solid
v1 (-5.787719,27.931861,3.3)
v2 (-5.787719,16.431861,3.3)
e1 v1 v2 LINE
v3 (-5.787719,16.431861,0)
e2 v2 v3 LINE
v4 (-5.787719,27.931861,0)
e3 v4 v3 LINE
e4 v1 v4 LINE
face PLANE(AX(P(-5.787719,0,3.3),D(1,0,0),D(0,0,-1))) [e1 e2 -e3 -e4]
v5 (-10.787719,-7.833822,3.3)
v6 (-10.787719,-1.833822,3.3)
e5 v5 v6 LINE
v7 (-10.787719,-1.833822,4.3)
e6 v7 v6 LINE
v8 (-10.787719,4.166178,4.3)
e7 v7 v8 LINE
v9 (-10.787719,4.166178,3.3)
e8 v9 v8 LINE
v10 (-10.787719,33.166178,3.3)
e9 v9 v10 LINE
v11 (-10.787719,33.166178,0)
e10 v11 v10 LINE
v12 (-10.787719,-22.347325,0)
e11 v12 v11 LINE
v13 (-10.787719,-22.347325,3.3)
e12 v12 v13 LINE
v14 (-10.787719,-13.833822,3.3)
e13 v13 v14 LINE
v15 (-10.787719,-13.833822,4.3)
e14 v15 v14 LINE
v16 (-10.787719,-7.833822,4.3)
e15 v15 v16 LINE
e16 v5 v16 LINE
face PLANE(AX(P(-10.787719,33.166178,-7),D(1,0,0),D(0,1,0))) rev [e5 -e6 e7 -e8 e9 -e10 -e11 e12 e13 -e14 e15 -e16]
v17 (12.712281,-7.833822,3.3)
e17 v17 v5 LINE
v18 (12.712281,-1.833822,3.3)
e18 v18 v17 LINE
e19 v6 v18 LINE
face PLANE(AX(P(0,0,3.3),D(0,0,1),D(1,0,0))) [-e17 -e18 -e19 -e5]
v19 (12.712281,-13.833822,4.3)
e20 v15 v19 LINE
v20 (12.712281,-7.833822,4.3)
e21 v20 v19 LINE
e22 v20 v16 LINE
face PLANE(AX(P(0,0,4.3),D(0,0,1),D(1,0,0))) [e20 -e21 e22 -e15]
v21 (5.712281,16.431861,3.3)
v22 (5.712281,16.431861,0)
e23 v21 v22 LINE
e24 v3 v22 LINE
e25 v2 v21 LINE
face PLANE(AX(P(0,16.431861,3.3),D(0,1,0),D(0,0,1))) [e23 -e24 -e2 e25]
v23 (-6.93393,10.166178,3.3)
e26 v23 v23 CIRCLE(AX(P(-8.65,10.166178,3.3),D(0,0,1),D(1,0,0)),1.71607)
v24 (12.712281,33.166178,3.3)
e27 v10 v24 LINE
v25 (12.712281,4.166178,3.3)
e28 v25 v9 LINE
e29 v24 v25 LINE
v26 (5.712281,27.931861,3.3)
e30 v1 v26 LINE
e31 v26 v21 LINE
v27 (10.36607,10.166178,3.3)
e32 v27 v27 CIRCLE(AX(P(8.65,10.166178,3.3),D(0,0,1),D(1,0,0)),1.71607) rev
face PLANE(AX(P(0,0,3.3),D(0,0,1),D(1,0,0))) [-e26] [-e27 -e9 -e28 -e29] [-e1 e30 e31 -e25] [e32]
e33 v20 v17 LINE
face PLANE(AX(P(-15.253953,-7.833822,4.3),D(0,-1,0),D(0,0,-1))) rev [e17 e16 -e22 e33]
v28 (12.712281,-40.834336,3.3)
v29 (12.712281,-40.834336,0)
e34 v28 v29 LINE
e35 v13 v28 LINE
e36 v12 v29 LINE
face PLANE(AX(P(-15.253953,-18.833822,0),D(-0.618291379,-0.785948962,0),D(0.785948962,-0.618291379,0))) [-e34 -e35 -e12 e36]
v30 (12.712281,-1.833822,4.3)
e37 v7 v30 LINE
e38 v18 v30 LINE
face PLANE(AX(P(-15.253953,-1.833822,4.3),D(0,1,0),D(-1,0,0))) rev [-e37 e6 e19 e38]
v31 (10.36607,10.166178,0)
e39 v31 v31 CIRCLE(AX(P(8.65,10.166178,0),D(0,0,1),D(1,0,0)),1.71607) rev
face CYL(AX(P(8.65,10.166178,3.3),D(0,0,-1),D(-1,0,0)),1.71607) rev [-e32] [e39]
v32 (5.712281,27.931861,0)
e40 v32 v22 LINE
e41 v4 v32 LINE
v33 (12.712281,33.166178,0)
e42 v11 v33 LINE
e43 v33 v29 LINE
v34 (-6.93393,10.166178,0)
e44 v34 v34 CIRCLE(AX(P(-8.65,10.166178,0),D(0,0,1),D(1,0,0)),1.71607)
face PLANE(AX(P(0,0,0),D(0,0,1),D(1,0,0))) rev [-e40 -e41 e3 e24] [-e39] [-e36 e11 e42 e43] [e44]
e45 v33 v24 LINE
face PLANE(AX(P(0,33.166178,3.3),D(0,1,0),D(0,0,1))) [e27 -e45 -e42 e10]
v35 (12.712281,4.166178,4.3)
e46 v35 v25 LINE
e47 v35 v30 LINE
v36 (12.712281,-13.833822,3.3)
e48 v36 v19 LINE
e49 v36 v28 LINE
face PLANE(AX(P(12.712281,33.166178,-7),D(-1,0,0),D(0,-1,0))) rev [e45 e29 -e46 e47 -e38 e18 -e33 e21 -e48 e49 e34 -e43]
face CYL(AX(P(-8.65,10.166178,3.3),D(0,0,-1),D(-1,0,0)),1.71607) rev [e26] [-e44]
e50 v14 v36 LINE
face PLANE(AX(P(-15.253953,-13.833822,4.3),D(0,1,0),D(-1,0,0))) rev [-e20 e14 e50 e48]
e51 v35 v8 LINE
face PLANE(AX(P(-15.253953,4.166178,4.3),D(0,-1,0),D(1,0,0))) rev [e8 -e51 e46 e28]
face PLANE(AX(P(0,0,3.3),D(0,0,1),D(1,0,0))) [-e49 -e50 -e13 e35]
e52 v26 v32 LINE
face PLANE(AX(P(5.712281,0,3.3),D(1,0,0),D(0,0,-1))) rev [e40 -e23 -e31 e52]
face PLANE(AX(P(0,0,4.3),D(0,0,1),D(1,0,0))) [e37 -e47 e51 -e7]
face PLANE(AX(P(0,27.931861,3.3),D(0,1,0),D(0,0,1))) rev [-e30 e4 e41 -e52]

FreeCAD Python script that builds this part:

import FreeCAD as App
import Part
import Sketcher

doc = App.newDocument("Part")
body = doc.addObject("PartDesign::Body", "Body")

sketch1 = body.newObject("Sketcher::SketchObject", "Sketch")
sketch1.AttachmentSupport = (doc.getObject("XY_Plane"), [""])
sketch1.MapMode = "FlatFace"
sketch1.addGeometry([
    Part.LineSegment(App.Vector(-15.3, 33.2, 0), App.Vector(-15.3, -42.8, 0)),
    Part.LineSegment(App.Vector(-15.3, -42.8, 0), App.Vector(15.3, -42.8, 0)),
    Part.LineSegment(App.Vector(15.3, -42.8, 0), App.Vector(15.3, 33.2, 0)),
    Part.LineSegment(App.Vector(15.3, 33.2, 0), App.Vector(-15.3, 33.2, 0)),
    Part.LineSegment(App.Vector(12.3, -39.8, 0), App.Vector(-12.3, -39.8, 0)),
    Part.LineSegment(App.Vector(-12.3, -39.8, 0), App.Vector(-12.3, -20.8, 0)),
    Part.LineSegment(App.Vector(-12.3, -20.8, 0), App.Vector(12.3, -20.8, 0)),
    Part.LineSegment(App.Vector(12.3, -20.8, 0), App.Vector(12.3, -39.8, 0)),
    Part.Circle(App.Vector(-8.7, 10.2, 0), App.Vector(0, 0, 1), 1.7),
    Part.LineSegment(App.Vector(5.7, 16.4, 0), App.Vector(-5.8, 16.4, 0)),
    Part.LineSegment(App.Vector(-5.8, 16.4, 0), App.Vector(-5.8, 27.9, 0)),
    Part.LineSegment(App.Vector(-5.8, 27.9, 0), App.Vector(5.7, 27.9, 0)),
    Part.LineSegment(App.Vector(5.7, 27.9, 0), App.Vector(5.7, 16.4, 0)),
    Part.Circle(App.Vector(8.7, 10.2, 0), App.Vector(0, 0, 1), 1.7),
], False)
sketch1.addConstraint([
    Sketcher.Constraint("Coincident", 0, 2, 1, 1),
    Sketcher.Constraint("Coincident", 1, 2, 2, 1),
    Sketcher.Constraint("Coincident", 2, 2, 3, 1),
    Sketcher.Constraint("Coincident", 3, 2, 0, 1),
    Sketcher.Constraint("Coincident", 4, 2, 5, 1),
    Sketcher.Constraint("Coincident", 5, 2, 6, 1),
    Sketcher.Constraint("Coincident", 6, 2, 7, 1),
    Sketcher.Constraint("Coincident", 7, 2, 4, 1),
    Sketcher.Constraint("Coincident", 9, 2, 10, 1),
    Sketcher.Constraint("Coincident", 10, 2, 11, 1),
    Sketcher.Constraint("Coincident", 11, 2, 12, 1),
    Sketcher.Constraint("Coincident", 12, 2, 9, 1),
    Sketcher.Constraint("Vertical", 0),
    Sketcher.Constraint("Horizontal", 1),
    Sketcher.Constraint("Vertical", 2),
    Sketcher.Constraint("Horizontal", 3),
    Sketcher.Constraint("Horizontal", 4),
    Sketcher.Constraint("Vertical", 5),
    Sketcher.Constraint("Horizontal", 6),
    Sketcher.Constraint("Vertical", 7),
    Sketcher.Constraint("Horizontal", 9),
    Sketcher.Constraint("Vertical", 10),
    Sketcher.Constraint("Horizontal", 11),
    Sketcher.Constraint("Vertical", 12),
    Sketcher.Constraint("Equal", 8, 13),
    Sketcher.Constraint("Symmetric", 8, 3, 13, 3, -2),
    Sketcher.Constraint("Equal", 11, 10),
    Sketcher.Constraint("DistanceY", 0, 2, 0, 1, 76.0),
    Sketcher.Constraint("DistanceY", 5, 1, 5, 2, 19.0),
    Sketcher.Constraint("DistanceX", 9, 2, 9, 1, 11.5),
    Sketcher.Constraint("DistanceY", 0, 2, 8, 3, 53.0),
    Sketcher.Constraint("DistanceX", 0, 2, 4, 2, 3.0),
    Sketcher.Constraint("DistanceY", 0, 2, 4, 2, 3.0),
    Sketcher.Constraint("DistanceX", 6, 2, 1, 2, 3.0),
    Sketcher.Constraint("DistanceX", 8, 3, 13, 3, 17.3),
    Sketcher.Constraint("Diameter", 8, 3.432139),
    Sketcher.Constraint("DistanceX", 1, 1, 1, 2, 30.507906),
    Sketcher.Constraint("DistanceX", 9, 2, -1, 1, 5.787719),
    Sketcher.Constraint("DistanceY", -1, 1, 9, 2, 16.431861),
    Sketcher.Constraint("DistanceY", -1, 1, 8, 3, 10.166178),
    Sketcher.Constraint("DistanceX", 0, 2, -1, 1, 15.253953),
])
pad1 = body.newObject("PartDesign::Pad", "Pad")
pad1.Profile = sketch1
pad1.Length = 3.3

sketch2 = body.newObject("Sketcher::SketchObject", "Sketch001")
sketch2.AttachmentSupport = (doc.getObject("XY_Plane"), [""])
sketch2.MapMode = "FlatFace"
sketch2.AttachmentOffset = App.Placement(App.Vector(0, 0, 3.3), App.Rotation())
sketch2.addGeometry([
    Part.LineSegment(App.Vector(-15, 4, 0), App.Vector(-15, -2, 0)),
    Part.LineSegment(App.Vector(-15, -2, 0), App.Vector(15, -2, 0)),
    Part.LineSegment(App.Vector(15, -2, 0), App.Vector(15, 4, 0)),
    Part.LineSegment(App.Vector(15, 4, 0), App.Vector(-15, 4, 0)),
    Part.LineSegment(App.Vector(-15, -8, 0), App.Vector(-15, -14, 0)),
    Part.LineSegment(App.Vector(-15, -14, 0), App.Vector(15, -14, 0)),
    Part.LineSegment(App.Vector(15, -14, 0), App.Vector(15, -8, 0)),
    Part.LineSegment(App.Vector(15, -8, 0), App.Vector(-15, -8, 0)),
], False)
sketch2.addConstraint([
    Sketcher.Constraint("Coincident", 0, 2, 1, 1),
    Sketcher.Constraint("Coincident", 1, 2, 2, 1),
    Sketcher.Constraint("Coincident", 2, 2, 3, 1),
    Sketcher.Constraint("Coincident", 3, 2, 0, 1),
    Sketcher.Constraint("Coincident", 4, 2, 5, 1),
    Sketcher.Constraint("Coincident", 5, 2, 6, 1),
    Sketcher.Constraint("Coincident", 6, 2, 7, 1),
    Sketcher.Constraint("Coincident", 7, 2, 4, 1),
    Sketcher.Constraint("Vertical", 0),
    Sketcher.Constraint("Horizontal", 1),
    Sketcher.Constraint("Vertical", 2),
    Sketcher.Constraint("Horizontal", 3),
    Sketcher.Constraint("Vertical", 4),
    Sketcher.Constraint("Horizontal", 5),
    Sketcher.Constraint("Vertical", 6),
    Sketcher.Constraint("Horizontal", 7),
    Sketcher.Constraint("Vertical", 3, 2, 4, 2),
    Sketcher.Constraint("Vertical", 2, 2, 5, 2),
    Sketcher.Constraint("Equal", 2, 4),
    Sketcher.Constraint("DistanceY", 0, 2, 0, 1, 6.0),
    Sketcher.Constraint("DistanceY", 4, 2, 0, 2, 12.0),
    Sketcher.Constraint("DistanceX", 1, 1, 1, 2, 30.507906),
    Sketcher.Constraint("DistanceX", 0, 2, -1, 1, 15.253953),
    Sketcher.Constraint("DistanceY", 0, 2, -1, 1, 1.833822),
])
pad2 = body.newObject("PartDesign::Pad", "Pad001")
pad2.Profile = sketch2
pad2.Length = 1

sketch3 = body.newObject("Sketcher::SketchObject", "Sketch002")
sketch3.AttachmentSupport = (doc.getObject("XY_Plane"), [""])
sketch3.MapMode = "FlatFace"
sketch3.addGeometry([
    Part.LineSegment(App.Vector(-15, -18, 0), App.Vector(15, -43, 0)),
    Part.LineSegment(App.Vector(15, -43, 0), App.Vector(15, -18, 0)),
    Part.LineSegment(App.Vector(15, -18, 0), App.Vector(-15, -18, 0)),
], False)
sketch3.addConstraint([
    Sketcher.Constraint("Coincident", 0, 2, 1, 1),
    Sketcher.Constraint("Coincident", 1, 2, 2, 1),
    Sketcher.Constraint("Coincident", 2, 2, 0, 1),
    Sketcher.Constraint("Vertical", 1),
    Sketcher.Constraint("Horizontal", 2),
    Sketcher.Constraint("DistanceY", 1, 1, 1, 2, 24.359762),
    Sketcher.Constraint("Distance", 0, 39.040112),
    Sketcher.Constraint("DistanceY", 1, 2, -1, 1, 18.47406),
    Sketcher.Constraint("DistanceX", -1, 1, 0, 2, 15.253953),
])
pad3 = body.newObject("PartDesign::Pad", "Pad002")
pad3.Profile = sketch3
pad3.Length = 3.3

sketch4 = body.newObject("Sketcher::SketchObject", "Sketch003")
sketch4.AttachmentSupport = (doc.getObject("XY_Plane"), [""])
sketch4.MapMode = "FlatFace"
sketch4.AttachmentOffset = App.Placement(App.Vector(0, 0, 3.3), App.Rotation())
sketch4.addGeometry([
    Part.LineSegment(App.Vector(15, -43, 0), App.Vector(-15, -19, 0)),
    Part.LineSegment(App.Vector(-15, -19, 0), App.Vector(-15, -43, 0)),
    Part.LineSegment(App.Vector(-15, -43, 0), App.Vector(15, -43, 0)),
], False)
sketch4.addConstraint([
    Sketcher.Constraint("Coincident", 0, 2, 1, 1),
    Sketcher.Constraint("Coincident", 1, 2, 2, 1),
    Sketcher.Constraint("Coincident", 2, 2, 0, 1),
    Sketcher.Constraint("Vertical", 1),
    Sketcher.Constraint("Horizontal", 2),
    Sketcher.Constraint("DistanceX", 2, 1, 2, 2, 30.507906),
    Sketcher.Constraint("DistanceY", 1, 2, 1, 1, 24.027073),
    Sketcher.Constraint("DistanceY", 0, 2, -1, 1, 18.806749),
    Sketcher.Constraint("DistanceX", 0, 2, -1, 1, 15.253953),
])
pocket1 = body.newObject("PartDesign::Pocket", "Pocket")
pocket1.Profile = sketch4
pocket1.Length = 3.3

sketch5 = body.newObject("Sketcher::SketchObject", "Sketch004")
sketch5.AttachmentSupport = (doc.getObject("XY_Plane"), [""])
sketch5.MapMode = "FlatFace"
sketch5.AttachmentOffset = App.Placement(App.Vector(0, 0, 3.3), App.Rotation())
sketch5.addGeometry([
    Part.LineSegment(App.Vector(-15, -43, 0), App.Vector(15, -43, 0)),
    Part.LineSegment(App.Vector(15, -43, 0), App.Vector(-15, -19, 0)),
    Part.LineSegment(App.Vector(-15, -19, 0), App.Vector(-15, -43, 0)),
], False)
sketch5.addConstraint([
    Sketcher.Constraint("Coincident", 0, 2, 1, 1),
    Sketcher.Constraint("Coincident", 1, 2, 2, 1),
    Sketcher.Constraint("Coincident", 2, 2, 0, 1),
    Sketcher.Constraint("Horizontal", 0),
    Sketcher.Constraint("Vertical", 2),
    Sketcher.Constraint("DistanceX", 0, 1, 0, 2, 30.507906),
    Sketcher.Constraint("DistanceY", 2, 2, 2, 1, 24.027073),
    Sketcher.Constraint("DistanceY", 1, 2, -1, 1, 18.806749),
    Sketcher.Constraint("DistanceX", -1, 1, 0, 2, 15.253953),
])
pad4 = body.newObject("PartDesign::Pad", "Pad003")
pad4.Profile = sketch5
pad4.Length = 3.3
pad4.Reversed = True

sketch6 = body.newObject("Sketcher::SketchObject", "Sketch005")
sketch6.AttachmentSupport = (doc.getObject("XY_Plane"), [""])
sketch6.MapMode = "FlatFace"
sketch6.AttachmentOffset = App.Placement(App.Vector(0, 0, 3.3), App.Rotation())
sketch6.addGeometry([
    Part.LineSegment(App.Vector(-15, -19, 0), App.Vector(-15, -43, 0)),
    Part.LineSegment(App.Vector(-15, -43, 0), App.Vector(15, -43, 0)),
    Part.LineSegment(App.Vector(15, -43, 0), App.Vector(15, -19, 0)),
    Part.LineSegment(App.Vector(15, -19, 0), App.Vector(-15, -19, 0)),
], False)
sketch6.addConstraint([
    Sketcher.Constraint("Coincident", 0, 2, 1, 1),
    Sketcher.Constraint("Coincident", 1, 2, 2, 1),
    Sketcher.Constraint("Coincident", 2, 2, 3, 1),
    Sketcher.Constraint("Coincident", 3, 2, 0, 1),
    Sketcher.Constraint("Vertical", 0),
    Sketcher.Constraint("Horizontal", 1),
    Sketcher.Constraint("Vertical", 2),
    Sketcher.Constraint("Horizontal", 3),
    Sketcher.Constraint("DistanceX", 1, 1, 1, 2, 30.507906),
    Sketcher.Constraint("DistanceY", 0, 2, 0, 1, 24.027073),
    Sketcher.Constraint("DistanceY", 2, 2, -1, 1, 18.806749),
    Sketcher.Constraint("DistanceX", 0, 2, -1, 1, 15.253953),
])
pad5 = body.newObject("PartDesign::Pad", "Pad004")
pad5.Profile = sketch6
pad5.Length = 3.3
pad5.Reversed = True

sketch7 = body.newObject("Sketcher::SketchObject", "Sketch006")
sketch7.AttachmentSupport = (doc.getObject("XY_Plane"), [""])
sketch7.MapMode = "FlatFace"
sketch7.AttachmentOffset = App.Placement(App.Vector(0, 0, 3.3), App.Rotation())
sketch7.addGeometry([
    Part.LineSegment(App.Vector(15, -43, 0), App.Vector(-15, -19, 0)),
    Part.LineSegment(App.Vector(-15, -19, 0), App.Vector(-15, -43, 0)),
    Part.LineSegment(App.Vector(-15, -43, 0), App.Vector(15, -43, 0)),
], False)
sketch7.addConstraint([
    Sketcher.Constraint("Coincident", 0, 2, 1, 1),
    Sketcher.Constraint("Coincident", 1, 2, 2, 1),
    Sketcher.Constraint("Coincident", 2, 2, 0, 1),
    Sketcher.Constraint("Vertical", 1),
    Sketcher.Constraint("Horizontal", 2),
    Sketcher.Constraint("DistanceY", 1, 2, 1, 1, 24.0),
    Sketcher.Constraint("Distance", 0, 38.81665),
    Sketcher.Constraint("DistanceX", 0, 2, -1, 1, 15.253953),
    Sketcher.Constraint("DistanceY", 0, 2, -1, 1, 18.833822),
])
pocket2 = body.newObject("PartDesign::Pocket", "Pocket001")
pocket2.Profile = sketch7
pocket2.Length = 3.3

sketch8 = body.newObject("Sketcher::SketchObject", "Sketch007")
sketch8.AttachmentSupport = (doc.getObject("XY_Plane"), [""])
sketch8.MapMode = "FlatFace"
sketch8.AttachmentOffset = App.Placement(App.Vector(0, 0, 4.3), App.Rotation())
sketch8.addGeometry([
    Part.LineSegment(App.Vector(-15.3, 33.2, 0), App.Vector(-15.3, -24.9, 0)),
    Part.LineSegment(App.Vector(-15.3, -24.9, 0), App.Vector(-10.8, -24.9, 0)),
    Part.LineSegment(App.Vector(-10.8, -24.9, 0), App.Vector(-10.8, 33.2, 0)),
    Part.LineSegment(App.Vector(-10.8, 33.2, 0), App.Vector(-15.3, 33.2, 0)),
    Part.LineSegment(App.Vector(12.7, 33.2, 0), App.Vector(12.7, -42.8, 0)),
    Part.LineSegment(App.Vector(12.7, -42.8, 0), App.Vector(15.3, -42.8, 0)),
    Part.LineSegment(App.Vector(15.3, -42.8, 0), App.Vector(15.3, 33.2, 0)),
    Part.LineSegment(App.Vector(15.3, 33.2, 0), App.Vector(12.7, 33.2, 0)),
], False)
sketch8.addConstraint([
    Sketcher.Constraint("Coincident", 0, 2, 1, 1),
    Sketcher.Constraint("Coincident", 1, 2, 2, 1),
    Sketcher.Constraint("Coincident", 2, 2, 3, 1),
    Sketcher.Constraint("Coincident", 3, 2, 0, 1),
    Sketcher.Constraint("Coincident", 4, 2, 5, 1),
    Sketcher.Constraint("Coincident", 5, 2, 6, 1),
    Sketcher.Constraint("Coincident", 6, 2, 7, 1),
    Sketcher.Constraint("Coincident", 7, 2, 4, 1),
    Sketcher.Constraint("Vertical", 0),
    Sketcher.Constraint("Horizontal", 1),
    Sketcher.Constraint("Vertical", 2),
    Sketcher.Constraint("Horizontal", 3),
    Sketcher.Constraint("Vertical", 4),
    Sketcher.Constraint("Horizontal", 5),
    Sketcher.Constraint("Vertical", 6),
    Sketcher.Constraint("Horizontal", 7),
    Sketcher.Constraint("Symmetric", 3, 2, 6, 2, -2),
    Sketcher.Constraint("DistanceY", 4, 2, 4, 1, 76.0),
    Sketcher.Constraint("DistanceX", 1, 2, 4, 2, 23.5),
    Sketcher.Constraint("DistanceY", 0, 2, 0, 1, 58.07222),
    Sketcher.Constraint("DistanceX", 1, 1, 1, 2, 4.466234),
    Sketcher.Constraint("DistanceX", 5, 1, 5, 2, 2.541672),
    Sketcher.Constraint("DistanceY", 0, 2, -1, 1, 24.906042),
])
pocket3 = body.newObject("PartDesign::Pocket", "Pocket002")
pocket3.Profile = sketch8
pocket3.Length = 11.3

doc.recompute()
